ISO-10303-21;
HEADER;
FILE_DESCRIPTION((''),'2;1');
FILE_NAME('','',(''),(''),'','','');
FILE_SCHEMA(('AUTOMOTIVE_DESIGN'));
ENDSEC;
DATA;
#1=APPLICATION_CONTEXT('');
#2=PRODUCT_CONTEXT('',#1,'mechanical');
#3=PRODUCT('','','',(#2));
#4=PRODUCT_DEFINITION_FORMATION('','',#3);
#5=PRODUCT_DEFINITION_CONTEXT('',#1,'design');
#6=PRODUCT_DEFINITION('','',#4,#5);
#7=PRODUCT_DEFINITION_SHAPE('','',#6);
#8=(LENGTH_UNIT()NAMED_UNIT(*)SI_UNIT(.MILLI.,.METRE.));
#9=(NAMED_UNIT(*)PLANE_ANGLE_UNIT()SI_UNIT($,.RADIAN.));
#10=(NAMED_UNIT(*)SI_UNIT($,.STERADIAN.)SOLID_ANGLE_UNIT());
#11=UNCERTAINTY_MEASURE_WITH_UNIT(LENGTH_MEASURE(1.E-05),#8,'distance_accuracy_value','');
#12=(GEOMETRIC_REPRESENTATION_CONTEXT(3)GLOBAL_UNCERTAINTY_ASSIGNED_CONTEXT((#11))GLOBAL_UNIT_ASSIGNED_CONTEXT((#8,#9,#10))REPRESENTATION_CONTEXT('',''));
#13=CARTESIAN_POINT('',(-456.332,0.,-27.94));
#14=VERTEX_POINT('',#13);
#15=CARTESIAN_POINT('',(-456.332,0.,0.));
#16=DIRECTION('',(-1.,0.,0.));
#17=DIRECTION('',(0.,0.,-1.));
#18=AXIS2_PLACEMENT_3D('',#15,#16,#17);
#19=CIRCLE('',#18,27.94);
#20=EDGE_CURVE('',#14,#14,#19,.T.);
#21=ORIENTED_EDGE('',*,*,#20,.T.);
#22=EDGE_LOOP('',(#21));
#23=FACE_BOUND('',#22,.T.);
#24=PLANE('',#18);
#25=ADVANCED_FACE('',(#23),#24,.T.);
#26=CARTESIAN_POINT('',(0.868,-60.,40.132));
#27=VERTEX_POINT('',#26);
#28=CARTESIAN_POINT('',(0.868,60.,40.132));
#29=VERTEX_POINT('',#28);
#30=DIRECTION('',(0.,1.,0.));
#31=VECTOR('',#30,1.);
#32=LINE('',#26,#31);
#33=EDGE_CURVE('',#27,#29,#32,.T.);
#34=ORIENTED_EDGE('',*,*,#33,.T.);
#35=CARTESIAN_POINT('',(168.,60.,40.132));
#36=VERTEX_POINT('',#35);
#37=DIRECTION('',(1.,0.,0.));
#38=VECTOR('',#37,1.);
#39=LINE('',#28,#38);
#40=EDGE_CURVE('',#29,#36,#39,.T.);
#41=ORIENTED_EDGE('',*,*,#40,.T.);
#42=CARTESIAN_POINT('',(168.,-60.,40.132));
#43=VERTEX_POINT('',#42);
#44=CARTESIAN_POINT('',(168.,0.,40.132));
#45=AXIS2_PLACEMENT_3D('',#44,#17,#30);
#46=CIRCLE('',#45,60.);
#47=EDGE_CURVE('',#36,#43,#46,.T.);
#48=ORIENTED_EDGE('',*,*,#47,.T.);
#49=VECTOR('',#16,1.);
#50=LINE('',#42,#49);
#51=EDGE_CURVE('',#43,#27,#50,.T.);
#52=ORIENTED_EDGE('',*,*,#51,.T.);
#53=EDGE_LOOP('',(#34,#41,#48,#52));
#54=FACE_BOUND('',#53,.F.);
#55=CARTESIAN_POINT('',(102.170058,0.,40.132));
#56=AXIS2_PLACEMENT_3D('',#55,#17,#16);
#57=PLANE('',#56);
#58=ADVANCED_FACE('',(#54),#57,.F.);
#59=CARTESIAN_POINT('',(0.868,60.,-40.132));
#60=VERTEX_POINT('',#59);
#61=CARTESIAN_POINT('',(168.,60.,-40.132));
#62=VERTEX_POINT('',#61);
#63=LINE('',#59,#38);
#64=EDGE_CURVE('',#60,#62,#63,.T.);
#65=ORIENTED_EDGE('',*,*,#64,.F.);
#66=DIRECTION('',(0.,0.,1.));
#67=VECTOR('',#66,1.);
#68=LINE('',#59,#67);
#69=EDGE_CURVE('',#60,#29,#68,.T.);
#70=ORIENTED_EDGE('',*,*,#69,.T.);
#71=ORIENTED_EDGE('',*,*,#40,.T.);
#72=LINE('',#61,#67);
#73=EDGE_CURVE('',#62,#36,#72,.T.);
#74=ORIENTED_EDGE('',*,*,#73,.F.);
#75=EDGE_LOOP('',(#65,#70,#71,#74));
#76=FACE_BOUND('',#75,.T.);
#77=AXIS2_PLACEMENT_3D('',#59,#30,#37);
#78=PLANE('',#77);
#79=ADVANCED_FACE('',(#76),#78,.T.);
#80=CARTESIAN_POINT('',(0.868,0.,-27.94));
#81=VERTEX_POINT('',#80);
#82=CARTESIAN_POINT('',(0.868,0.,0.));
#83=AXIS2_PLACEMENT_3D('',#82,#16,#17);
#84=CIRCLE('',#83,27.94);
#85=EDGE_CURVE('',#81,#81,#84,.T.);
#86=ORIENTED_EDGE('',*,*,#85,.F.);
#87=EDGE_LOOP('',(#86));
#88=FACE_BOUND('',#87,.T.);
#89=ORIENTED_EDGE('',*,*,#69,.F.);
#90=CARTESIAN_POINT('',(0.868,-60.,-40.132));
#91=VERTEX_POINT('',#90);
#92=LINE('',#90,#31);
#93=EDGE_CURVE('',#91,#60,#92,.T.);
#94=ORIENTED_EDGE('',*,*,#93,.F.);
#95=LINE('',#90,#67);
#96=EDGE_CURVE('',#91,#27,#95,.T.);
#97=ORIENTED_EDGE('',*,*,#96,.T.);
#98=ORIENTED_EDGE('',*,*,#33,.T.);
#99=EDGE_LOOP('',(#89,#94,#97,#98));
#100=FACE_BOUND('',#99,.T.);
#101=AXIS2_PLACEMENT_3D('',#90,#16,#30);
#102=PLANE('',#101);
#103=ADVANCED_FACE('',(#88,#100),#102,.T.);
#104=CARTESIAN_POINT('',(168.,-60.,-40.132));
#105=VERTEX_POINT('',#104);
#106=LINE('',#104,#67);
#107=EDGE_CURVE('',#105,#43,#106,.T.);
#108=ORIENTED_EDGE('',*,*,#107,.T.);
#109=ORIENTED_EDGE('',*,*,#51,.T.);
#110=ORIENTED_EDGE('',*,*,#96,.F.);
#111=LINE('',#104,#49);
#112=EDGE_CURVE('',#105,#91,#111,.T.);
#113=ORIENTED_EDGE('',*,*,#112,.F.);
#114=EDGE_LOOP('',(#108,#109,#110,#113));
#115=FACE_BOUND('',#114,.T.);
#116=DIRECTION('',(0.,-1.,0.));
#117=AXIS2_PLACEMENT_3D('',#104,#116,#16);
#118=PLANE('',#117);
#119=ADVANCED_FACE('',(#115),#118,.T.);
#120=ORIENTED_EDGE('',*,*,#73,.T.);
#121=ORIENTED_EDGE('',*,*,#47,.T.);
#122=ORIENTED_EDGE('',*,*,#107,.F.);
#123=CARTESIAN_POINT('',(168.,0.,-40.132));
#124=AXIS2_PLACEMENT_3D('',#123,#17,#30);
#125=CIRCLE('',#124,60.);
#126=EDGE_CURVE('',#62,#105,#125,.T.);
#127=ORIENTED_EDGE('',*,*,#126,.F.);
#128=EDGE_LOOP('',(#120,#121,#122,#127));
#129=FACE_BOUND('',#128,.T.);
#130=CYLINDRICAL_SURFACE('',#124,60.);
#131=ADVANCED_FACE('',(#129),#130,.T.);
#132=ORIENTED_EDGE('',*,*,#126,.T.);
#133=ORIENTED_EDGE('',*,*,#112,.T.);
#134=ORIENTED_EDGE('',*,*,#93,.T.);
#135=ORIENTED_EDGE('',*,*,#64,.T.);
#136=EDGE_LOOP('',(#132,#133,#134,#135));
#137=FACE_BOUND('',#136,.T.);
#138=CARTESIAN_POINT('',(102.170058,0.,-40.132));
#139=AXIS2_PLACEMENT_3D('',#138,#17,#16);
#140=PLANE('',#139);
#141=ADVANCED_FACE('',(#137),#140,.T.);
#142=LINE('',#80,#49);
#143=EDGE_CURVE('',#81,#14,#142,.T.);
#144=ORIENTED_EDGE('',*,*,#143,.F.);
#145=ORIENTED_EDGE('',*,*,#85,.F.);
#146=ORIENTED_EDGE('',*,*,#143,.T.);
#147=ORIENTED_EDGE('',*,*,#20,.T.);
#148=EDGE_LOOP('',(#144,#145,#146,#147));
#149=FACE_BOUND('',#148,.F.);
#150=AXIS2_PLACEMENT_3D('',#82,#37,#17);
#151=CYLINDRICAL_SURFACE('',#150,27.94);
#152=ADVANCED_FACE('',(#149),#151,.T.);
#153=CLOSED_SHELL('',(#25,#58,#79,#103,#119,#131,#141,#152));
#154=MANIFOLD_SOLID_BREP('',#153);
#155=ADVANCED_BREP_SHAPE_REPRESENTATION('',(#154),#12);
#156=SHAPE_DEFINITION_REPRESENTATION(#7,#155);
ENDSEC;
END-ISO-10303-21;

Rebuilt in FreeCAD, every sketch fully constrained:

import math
import FreeCAD as App
import Part
import Sketcher
from FreeCAD import Vector
Q = App.Units.Quantity

doc = App.newDocument("Part")
body = doc.addObject("PartDesign::Body", "Body")

# Sketch on XY plane
sketch1 = body.newObject("Sketcher::SketchObject", "Sketch")
sketch1.AttachmentSupport = (doc.getObject("XY_Plane"), [""])
sketch1.MapMode = "FlatFace"
sketch1.addGeometry([
    Part.LineSegment(Vector(168, 60, 0), Vector(1, 60, 0)),
    Part.LineSegment(Vector(1, 60, 0), Vector(1, -60, 0)),
    Part.LineSegment(Vector(1, -60, 0), Vector(168, -60, 0)),
    Part.ArcOfCircle(Part.Circle(Vector(168, 0, 0), Vector(0, 0, 1), 60), math.radians(-90), math.radians(90)),
], False)
sketch1.addConstraint([
    Sketcher.Constraint("Coincident", 0, 2, 1, 1),
    Sketcher.Constraint("Coincident", 1, 2, 2, 1),
    Sketcher.Constraint("Tangent", 2, 2, 3, 1),
    Sketcher.Constraint("Tangent", 3, 2, 0, 1),
    Sketcher.Constraint("Horizontal", 0),
    Sketcher.Constraint("Vertical", 1),
    Sketcher.Constraint("Horizontal", 2),
    Sketcher.Constraint("PointOnObject", 3, 3, -1),
    Sketcher.Constraint("DistanceX", 0, 2, 0, 1, Q("6.58 in")),
    Sketcher.Constraint("Radius", 3, 60.0),
    Sketcher.Constraint("DistanceX", -1, 1, 3, 3, 168.0),
])
pad1 = body.newObject("PartDesign::Pad", "Pad")
pad1.Profile = sketch1
pad1.Type = "TwoLengths"
pad1.Length = Q("1.58 in")
pad1.Length2 = Q("1.58 in")

# Sketch on YZ plane
sketch2 = body.newObject("Sketcher::SketchObject", "Sketch001")
sketch2.AttachmentSupport = (doc.getObject("YZ_Plane"), [""])
sketch2.MapMode = "FlatFace"
sketch2.AttachmentOffset = App.Placement(Vector(0, 0, 0.868), App.Rotation())
sketch2.addGeometry(Part.Circle(Vector(0, 0, 0), Vector(0, 0, 1), 28), False)
sketch2.addConstraint([
    Sketcher.Constraint("Coincident", 0, 3, -1, 1),
    Sketcher.Constraint("Diameter", 0, Q("2.2 in")),
])
pad2 = body.newObject("PartDesign::Pad", "Pad001")
pad2.Profile = sketch2
pad2.Length = Q("18 in")
pad2.Reversed = True

doc.recompute()
